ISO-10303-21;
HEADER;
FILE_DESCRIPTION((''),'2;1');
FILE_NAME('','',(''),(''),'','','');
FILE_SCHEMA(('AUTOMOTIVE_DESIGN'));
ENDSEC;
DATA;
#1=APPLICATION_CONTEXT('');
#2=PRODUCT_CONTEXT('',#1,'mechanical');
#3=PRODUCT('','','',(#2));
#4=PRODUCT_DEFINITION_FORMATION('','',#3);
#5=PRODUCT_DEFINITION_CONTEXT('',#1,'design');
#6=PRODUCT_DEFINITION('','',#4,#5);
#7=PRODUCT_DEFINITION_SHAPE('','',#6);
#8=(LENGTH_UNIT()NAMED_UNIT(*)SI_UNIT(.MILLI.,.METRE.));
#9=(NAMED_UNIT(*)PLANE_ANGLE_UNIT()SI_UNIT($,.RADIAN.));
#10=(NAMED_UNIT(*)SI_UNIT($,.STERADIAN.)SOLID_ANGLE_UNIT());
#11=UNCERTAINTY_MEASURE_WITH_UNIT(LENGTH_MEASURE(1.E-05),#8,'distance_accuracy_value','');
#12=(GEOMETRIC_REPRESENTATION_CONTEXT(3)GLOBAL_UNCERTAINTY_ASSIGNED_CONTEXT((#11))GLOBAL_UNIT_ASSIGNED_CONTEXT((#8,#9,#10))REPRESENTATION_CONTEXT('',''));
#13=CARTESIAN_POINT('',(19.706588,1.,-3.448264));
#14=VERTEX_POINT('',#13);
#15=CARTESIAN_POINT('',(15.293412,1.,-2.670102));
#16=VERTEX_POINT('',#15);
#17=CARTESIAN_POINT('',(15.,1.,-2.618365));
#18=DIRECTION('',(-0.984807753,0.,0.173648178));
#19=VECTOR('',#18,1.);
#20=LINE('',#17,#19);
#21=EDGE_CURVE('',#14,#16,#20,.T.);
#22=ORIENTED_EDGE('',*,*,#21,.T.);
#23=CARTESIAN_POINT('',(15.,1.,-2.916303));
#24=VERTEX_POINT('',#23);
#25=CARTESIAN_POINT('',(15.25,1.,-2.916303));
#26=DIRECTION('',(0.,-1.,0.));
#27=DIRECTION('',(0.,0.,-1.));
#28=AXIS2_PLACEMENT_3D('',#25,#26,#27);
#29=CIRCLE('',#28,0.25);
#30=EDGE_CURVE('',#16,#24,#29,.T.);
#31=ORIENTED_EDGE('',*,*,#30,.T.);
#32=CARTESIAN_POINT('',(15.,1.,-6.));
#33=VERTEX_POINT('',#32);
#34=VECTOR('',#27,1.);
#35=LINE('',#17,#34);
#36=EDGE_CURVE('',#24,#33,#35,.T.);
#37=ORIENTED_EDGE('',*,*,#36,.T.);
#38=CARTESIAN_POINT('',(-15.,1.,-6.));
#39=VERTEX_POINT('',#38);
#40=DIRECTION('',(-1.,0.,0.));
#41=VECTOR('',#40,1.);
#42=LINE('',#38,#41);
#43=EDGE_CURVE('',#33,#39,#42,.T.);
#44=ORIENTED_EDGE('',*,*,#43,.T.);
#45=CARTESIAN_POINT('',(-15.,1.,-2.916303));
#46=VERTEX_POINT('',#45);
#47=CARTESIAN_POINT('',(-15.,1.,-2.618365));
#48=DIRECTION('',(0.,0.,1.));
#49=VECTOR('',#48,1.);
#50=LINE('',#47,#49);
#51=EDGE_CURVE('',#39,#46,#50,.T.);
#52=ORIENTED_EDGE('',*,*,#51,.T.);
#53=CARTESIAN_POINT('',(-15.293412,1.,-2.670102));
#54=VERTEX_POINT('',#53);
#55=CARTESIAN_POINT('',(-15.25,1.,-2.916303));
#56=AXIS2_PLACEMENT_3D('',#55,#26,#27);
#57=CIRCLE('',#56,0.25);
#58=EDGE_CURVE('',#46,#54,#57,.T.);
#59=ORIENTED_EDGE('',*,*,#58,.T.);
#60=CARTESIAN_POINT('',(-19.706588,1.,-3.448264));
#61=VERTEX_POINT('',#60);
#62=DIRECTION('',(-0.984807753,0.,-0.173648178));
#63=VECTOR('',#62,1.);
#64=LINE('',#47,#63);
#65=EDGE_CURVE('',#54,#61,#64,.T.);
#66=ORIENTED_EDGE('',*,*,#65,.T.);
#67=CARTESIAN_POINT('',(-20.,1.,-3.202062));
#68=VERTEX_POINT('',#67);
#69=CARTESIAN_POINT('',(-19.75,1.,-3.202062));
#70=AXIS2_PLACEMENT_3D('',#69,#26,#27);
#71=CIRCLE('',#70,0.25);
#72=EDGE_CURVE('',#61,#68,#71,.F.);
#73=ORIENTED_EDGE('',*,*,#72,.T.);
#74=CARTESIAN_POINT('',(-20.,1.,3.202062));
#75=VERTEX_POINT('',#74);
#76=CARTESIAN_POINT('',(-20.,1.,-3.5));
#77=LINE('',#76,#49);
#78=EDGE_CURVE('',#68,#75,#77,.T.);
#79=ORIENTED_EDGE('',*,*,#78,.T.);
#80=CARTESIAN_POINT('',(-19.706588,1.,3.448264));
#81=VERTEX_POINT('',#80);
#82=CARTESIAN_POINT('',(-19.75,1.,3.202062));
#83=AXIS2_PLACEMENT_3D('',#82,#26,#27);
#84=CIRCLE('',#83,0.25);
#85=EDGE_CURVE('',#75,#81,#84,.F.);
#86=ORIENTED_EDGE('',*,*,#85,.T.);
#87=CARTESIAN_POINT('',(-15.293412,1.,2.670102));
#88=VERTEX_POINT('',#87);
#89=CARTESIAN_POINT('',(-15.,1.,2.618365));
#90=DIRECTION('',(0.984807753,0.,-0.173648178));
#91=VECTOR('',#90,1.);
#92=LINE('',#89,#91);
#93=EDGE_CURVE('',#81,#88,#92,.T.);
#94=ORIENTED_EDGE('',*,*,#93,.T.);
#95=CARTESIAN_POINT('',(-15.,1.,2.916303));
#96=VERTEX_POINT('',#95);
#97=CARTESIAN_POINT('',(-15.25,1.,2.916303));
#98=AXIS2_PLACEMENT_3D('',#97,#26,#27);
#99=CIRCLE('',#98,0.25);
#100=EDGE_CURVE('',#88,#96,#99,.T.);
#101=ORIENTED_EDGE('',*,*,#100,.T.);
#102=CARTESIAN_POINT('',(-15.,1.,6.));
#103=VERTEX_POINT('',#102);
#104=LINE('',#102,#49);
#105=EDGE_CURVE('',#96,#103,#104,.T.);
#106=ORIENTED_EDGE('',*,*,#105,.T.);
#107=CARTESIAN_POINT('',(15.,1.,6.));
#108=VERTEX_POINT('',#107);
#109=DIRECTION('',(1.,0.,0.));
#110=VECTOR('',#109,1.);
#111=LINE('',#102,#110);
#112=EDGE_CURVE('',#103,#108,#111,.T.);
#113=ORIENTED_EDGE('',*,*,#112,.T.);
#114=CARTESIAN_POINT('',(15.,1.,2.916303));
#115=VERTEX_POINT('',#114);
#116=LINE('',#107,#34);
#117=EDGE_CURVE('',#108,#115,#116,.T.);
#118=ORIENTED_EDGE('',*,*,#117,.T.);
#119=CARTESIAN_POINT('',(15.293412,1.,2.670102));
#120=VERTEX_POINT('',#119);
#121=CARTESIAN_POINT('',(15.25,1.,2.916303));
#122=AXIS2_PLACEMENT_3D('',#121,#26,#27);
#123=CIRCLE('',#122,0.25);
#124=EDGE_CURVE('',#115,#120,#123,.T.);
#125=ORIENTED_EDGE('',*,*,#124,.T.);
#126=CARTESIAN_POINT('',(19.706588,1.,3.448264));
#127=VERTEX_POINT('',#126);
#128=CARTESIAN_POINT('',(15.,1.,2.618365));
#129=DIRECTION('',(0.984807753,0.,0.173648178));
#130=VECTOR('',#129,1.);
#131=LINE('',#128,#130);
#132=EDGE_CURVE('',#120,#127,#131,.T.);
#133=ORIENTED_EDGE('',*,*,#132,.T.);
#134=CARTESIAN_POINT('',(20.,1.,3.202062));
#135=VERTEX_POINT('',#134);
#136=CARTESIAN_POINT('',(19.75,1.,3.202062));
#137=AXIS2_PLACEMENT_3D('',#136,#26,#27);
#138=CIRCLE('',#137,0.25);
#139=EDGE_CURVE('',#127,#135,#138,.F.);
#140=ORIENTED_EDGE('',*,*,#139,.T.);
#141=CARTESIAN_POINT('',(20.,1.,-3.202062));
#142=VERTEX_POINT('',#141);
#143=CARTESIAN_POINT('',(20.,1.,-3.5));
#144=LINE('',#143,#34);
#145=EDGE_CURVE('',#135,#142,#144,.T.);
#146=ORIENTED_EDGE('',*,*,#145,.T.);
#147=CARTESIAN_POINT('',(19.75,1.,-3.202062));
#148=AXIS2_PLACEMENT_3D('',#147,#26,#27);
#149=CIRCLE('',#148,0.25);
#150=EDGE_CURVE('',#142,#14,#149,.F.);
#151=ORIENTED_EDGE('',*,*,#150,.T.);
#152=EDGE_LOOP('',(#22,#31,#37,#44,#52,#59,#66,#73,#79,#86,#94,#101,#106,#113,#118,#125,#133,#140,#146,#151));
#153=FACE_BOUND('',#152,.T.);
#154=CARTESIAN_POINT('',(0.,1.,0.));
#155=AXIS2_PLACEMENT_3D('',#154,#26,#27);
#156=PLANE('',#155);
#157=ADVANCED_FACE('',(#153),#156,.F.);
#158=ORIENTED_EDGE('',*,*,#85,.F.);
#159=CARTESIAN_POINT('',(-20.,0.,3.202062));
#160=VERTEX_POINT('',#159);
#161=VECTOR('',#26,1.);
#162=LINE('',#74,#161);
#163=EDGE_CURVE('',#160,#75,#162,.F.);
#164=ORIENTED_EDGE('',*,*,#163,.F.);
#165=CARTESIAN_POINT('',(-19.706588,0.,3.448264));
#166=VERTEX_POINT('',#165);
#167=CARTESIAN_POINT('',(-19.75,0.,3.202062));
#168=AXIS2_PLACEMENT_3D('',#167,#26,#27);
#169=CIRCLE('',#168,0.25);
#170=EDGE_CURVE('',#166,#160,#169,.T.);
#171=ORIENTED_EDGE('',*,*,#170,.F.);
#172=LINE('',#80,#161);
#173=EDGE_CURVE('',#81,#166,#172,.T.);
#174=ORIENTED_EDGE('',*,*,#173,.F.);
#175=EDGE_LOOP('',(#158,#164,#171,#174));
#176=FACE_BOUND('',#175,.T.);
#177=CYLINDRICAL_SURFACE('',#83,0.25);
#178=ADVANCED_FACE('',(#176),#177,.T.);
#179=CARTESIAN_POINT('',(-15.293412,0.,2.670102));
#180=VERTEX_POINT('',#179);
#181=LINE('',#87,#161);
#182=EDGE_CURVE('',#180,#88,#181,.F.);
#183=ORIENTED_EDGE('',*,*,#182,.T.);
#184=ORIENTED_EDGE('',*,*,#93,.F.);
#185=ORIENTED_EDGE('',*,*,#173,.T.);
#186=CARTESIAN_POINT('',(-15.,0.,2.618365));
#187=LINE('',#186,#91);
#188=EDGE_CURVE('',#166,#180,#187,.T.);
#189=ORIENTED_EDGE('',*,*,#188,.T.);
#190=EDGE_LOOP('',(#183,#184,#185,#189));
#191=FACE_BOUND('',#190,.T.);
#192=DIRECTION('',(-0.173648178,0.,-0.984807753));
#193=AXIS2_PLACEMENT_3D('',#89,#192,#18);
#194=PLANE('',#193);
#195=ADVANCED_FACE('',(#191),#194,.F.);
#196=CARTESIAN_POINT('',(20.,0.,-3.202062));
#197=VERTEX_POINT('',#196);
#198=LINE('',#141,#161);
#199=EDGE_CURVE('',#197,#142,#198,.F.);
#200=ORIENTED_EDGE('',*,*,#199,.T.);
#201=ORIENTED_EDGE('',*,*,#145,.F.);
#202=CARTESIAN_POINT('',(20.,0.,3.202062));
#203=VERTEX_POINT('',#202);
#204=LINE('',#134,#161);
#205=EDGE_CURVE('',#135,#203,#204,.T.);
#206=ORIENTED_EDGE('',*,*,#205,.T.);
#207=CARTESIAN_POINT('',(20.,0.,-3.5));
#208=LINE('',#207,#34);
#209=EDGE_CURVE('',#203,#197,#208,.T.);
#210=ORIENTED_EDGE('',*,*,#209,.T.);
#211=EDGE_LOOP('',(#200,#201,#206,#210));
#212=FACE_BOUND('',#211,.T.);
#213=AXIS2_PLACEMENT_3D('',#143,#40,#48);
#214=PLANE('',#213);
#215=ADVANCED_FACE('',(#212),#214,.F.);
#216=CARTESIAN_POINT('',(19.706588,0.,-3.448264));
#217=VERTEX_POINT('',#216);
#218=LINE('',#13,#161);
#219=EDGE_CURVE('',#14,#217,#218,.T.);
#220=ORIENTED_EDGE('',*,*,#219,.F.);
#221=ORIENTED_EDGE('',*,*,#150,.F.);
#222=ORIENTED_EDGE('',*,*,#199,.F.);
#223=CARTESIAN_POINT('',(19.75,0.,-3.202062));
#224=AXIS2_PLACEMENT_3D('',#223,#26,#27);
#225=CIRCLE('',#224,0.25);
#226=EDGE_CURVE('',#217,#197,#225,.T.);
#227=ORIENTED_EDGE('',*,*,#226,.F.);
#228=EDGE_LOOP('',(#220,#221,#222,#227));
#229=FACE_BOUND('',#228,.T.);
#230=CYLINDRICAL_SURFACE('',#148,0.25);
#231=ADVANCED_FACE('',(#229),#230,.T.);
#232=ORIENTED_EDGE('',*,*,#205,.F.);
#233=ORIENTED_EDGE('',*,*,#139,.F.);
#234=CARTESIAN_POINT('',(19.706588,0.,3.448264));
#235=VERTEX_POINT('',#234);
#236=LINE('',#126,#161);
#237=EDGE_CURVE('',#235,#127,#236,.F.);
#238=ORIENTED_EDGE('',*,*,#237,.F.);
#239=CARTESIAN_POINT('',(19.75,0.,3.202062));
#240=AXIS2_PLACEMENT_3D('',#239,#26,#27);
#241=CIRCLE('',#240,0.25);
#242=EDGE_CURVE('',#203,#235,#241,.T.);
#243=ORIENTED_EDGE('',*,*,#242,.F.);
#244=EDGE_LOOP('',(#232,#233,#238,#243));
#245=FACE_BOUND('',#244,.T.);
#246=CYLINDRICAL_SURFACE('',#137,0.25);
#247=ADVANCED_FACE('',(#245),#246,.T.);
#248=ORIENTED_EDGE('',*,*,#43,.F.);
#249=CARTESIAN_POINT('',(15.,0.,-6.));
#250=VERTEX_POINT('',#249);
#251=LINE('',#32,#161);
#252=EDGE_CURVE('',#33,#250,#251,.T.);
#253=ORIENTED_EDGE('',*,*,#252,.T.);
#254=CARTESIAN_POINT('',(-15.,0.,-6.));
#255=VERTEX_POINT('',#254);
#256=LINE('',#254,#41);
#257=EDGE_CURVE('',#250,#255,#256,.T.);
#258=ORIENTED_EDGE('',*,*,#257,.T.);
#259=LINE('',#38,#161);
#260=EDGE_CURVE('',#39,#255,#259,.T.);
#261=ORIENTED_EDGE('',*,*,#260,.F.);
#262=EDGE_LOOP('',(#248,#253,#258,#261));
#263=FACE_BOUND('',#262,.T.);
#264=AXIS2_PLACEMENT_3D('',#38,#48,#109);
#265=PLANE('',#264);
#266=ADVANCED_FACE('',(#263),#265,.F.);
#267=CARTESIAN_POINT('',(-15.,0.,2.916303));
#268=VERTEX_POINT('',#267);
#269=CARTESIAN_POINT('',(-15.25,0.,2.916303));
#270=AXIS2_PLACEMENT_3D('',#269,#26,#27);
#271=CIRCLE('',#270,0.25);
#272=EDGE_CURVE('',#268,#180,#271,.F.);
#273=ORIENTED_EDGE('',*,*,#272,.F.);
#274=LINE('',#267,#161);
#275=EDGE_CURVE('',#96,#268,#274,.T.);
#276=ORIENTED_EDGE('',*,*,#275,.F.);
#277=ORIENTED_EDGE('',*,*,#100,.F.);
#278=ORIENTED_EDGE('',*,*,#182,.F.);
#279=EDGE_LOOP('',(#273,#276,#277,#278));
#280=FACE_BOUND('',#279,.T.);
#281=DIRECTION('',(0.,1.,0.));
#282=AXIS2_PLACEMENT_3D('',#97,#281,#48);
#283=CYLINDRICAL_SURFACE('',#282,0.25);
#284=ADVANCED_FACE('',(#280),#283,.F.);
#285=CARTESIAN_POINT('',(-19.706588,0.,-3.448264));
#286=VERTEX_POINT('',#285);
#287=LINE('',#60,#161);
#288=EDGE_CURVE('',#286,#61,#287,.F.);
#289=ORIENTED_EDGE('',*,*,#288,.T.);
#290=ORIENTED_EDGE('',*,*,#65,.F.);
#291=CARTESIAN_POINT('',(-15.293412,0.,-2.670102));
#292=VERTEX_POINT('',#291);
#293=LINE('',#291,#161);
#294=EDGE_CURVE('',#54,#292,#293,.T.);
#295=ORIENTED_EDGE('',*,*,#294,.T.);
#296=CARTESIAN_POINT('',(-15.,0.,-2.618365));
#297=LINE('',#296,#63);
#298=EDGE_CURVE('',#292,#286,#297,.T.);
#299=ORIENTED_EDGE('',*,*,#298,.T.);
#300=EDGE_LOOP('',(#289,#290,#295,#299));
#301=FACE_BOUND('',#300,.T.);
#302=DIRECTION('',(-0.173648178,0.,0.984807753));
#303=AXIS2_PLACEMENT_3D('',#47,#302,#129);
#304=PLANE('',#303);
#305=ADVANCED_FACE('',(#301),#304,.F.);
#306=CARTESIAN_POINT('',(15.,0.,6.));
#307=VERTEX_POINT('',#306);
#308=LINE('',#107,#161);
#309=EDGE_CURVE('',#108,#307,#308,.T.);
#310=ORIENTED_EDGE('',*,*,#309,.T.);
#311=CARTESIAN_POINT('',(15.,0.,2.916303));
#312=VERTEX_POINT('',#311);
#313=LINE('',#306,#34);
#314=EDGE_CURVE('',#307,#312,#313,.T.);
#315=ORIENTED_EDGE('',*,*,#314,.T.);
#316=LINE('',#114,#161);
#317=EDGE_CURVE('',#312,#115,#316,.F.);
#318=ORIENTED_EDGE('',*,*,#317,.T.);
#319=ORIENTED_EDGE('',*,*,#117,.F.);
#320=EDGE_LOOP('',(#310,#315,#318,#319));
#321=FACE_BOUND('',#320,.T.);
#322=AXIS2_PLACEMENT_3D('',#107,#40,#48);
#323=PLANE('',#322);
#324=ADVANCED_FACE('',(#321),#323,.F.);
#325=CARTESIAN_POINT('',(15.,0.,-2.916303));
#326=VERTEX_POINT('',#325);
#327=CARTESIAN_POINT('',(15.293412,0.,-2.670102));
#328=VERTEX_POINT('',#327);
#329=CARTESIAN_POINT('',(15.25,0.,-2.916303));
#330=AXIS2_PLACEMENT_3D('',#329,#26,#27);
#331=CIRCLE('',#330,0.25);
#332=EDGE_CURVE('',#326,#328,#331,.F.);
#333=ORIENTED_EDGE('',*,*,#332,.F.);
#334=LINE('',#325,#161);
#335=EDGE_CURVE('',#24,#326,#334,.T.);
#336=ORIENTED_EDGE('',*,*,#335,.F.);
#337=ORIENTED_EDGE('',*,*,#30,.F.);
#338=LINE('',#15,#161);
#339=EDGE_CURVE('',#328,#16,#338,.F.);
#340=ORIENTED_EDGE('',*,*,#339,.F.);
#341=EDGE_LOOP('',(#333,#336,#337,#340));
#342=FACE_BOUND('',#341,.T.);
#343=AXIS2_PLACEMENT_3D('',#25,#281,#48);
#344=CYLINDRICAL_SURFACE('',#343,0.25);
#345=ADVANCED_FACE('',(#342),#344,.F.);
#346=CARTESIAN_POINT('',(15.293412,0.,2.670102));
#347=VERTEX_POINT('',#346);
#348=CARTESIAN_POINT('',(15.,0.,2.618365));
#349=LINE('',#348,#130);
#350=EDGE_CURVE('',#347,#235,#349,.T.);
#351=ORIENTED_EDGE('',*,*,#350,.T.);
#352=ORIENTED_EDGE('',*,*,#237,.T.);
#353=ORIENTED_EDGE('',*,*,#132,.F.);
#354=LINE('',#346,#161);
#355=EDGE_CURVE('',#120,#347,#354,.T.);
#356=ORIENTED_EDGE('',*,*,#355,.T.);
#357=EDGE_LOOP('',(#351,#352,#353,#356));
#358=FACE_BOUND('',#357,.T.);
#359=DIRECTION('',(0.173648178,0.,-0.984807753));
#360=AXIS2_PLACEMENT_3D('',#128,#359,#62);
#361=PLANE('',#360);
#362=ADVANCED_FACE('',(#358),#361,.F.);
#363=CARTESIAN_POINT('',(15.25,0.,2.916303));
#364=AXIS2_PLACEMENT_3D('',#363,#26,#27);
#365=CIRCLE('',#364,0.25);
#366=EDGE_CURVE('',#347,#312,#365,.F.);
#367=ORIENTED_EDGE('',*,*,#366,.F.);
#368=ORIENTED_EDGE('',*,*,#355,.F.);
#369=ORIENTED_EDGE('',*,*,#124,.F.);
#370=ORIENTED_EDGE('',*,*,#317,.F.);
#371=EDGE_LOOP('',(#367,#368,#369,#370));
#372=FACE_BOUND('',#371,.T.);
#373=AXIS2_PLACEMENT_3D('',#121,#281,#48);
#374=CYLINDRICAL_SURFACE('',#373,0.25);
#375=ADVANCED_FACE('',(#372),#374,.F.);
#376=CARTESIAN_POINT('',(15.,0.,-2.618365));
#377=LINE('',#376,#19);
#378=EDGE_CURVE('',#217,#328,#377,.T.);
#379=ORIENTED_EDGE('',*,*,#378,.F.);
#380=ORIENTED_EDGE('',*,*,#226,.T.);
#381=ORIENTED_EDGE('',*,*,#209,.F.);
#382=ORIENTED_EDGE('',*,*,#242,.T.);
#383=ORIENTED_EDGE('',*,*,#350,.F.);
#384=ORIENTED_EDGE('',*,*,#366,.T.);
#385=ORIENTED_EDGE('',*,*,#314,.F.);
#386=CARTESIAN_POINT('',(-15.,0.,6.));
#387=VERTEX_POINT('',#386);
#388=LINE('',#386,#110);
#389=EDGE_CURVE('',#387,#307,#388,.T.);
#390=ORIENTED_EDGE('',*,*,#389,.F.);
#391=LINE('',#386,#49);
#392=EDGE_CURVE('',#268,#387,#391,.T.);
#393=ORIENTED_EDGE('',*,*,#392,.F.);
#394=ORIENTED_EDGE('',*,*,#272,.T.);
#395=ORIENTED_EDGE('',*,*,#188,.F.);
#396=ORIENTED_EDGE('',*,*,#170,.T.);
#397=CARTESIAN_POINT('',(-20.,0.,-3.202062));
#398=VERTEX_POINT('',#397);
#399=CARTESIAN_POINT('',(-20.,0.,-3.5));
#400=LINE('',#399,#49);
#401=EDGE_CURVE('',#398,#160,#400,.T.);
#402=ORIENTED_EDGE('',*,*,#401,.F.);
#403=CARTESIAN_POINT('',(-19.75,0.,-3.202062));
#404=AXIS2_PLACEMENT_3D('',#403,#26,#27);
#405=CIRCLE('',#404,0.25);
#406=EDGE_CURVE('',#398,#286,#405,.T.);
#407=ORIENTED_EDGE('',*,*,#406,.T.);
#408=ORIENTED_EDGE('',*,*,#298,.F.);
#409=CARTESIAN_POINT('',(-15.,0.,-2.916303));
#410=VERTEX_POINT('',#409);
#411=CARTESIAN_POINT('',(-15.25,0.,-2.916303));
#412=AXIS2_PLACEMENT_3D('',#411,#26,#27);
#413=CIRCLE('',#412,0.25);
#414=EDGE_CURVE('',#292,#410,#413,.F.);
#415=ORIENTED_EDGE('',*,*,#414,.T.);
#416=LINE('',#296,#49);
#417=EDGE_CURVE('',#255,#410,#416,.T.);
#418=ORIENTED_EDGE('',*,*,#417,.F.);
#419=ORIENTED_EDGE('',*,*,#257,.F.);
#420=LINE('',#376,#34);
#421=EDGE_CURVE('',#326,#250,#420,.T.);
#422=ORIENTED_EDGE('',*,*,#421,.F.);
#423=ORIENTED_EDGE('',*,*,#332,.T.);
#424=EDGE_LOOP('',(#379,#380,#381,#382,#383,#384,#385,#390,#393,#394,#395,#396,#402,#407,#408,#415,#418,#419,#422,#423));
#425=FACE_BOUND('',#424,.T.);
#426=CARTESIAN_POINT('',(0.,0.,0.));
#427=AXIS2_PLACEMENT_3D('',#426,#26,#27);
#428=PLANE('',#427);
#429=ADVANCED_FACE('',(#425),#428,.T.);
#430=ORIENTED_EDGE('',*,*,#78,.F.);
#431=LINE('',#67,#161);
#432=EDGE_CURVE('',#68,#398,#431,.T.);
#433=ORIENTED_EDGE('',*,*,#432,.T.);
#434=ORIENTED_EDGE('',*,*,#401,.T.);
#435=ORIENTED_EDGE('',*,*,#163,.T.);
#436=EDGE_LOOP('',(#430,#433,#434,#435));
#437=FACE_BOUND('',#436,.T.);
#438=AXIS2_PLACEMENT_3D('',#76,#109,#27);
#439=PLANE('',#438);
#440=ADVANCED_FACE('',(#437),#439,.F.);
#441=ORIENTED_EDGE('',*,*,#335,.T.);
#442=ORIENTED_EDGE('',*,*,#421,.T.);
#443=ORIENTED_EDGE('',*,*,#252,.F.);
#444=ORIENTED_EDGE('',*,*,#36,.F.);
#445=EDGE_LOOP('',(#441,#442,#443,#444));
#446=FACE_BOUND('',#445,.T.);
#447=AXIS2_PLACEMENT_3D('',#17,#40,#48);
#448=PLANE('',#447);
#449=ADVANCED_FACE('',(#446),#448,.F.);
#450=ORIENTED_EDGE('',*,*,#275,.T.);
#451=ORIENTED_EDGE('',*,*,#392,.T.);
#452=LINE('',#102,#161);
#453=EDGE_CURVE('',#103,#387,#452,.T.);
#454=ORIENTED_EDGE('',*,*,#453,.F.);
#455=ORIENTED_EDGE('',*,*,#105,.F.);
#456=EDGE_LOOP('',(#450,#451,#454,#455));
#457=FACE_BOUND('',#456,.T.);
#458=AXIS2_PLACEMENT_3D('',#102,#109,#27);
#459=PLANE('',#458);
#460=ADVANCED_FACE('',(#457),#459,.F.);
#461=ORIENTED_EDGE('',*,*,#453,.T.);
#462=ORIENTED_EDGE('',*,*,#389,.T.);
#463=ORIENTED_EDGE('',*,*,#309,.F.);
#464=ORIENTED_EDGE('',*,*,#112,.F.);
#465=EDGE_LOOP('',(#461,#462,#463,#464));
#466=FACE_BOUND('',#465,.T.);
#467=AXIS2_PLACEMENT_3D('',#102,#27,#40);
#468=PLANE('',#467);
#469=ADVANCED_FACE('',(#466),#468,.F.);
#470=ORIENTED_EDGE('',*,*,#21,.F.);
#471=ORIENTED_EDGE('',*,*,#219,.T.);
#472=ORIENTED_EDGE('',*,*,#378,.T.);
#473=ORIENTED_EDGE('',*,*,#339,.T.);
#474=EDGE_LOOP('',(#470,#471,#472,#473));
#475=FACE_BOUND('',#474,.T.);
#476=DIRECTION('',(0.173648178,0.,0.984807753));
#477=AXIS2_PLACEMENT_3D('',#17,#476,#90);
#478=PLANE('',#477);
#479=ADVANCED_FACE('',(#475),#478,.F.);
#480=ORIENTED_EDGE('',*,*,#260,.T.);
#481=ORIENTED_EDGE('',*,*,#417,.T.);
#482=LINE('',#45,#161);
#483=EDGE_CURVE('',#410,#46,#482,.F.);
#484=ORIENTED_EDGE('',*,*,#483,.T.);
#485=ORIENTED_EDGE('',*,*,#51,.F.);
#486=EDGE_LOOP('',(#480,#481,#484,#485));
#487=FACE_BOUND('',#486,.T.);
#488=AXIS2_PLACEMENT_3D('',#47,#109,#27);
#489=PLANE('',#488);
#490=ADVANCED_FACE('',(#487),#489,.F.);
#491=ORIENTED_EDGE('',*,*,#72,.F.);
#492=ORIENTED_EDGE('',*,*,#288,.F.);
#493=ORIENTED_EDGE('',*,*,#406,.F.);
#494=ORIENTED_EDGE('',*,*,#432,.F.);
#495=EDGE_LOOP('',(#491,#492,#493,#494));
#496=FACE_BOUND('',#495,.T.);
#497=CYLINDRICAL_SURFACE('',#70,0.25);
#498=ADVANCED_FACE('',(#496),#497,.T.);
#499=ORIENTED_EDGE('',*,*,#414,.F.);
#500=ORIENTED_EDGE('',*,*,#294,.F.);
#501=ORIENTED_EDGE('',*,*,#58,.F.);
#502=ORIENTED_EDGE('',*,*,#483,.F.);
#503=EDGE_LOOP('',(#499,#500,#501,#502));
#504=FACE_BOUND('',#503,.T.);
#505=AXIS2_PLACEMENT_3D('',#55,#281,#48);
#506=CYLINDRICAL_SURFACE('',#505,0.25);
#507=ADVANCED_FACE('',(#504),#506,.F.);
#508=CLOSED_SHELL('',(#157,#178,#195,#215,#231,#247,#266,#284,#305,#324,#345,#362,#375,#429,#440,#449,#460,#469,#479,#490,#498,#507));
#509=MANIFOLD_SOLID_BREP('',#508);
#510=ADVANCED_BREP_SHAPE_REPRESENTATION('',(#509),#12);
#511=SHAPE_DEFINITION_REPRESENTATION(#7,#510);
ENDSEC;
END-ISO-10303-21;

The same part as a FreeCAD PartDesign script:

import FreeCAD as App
import Part
import Sketcher
from FreeCAD import Vector
Q = App.Units.Quantity


def edges_at(feature, points):
    """Names of the edges that pass closest to the given points."""
    edges = feature.Shape.Edges
    near = lambda p: min(range(len(edges)), key=lambda i: edges[i].distToShape(Part.Vertex(*p))[0])
    return sorted({f"Edge{near(p) + 1}" for p in points})


def add_polygon(sketch, points):
    """Adds a closed chain of lines whose ends are joined by coincident constraints."""
    first, n = sketch.GeometryCount, len(points)
    for a, b in zip(points, points[1:] + points[:1]):
        sketch.addGeometry(Part.LineSegment(App.Vector(*a, 0), App.Vector(*b, 0)), False)
    for i in range(n):
        sketch.addConstraint(Sketcher.Constraint("Coincident", first + i, 2, first + (i + 1) % n, 1))

doc = App.newDocument("Part")
body = doc.addObject("PartDesign::Body", "Body")

# Sketch on XZ plane
sketch1 = body.newObject("Sketcher::SketchObject", "Sketch")
sketch1.AttachmentSupport = (doc.getObject("XZ_Plane"), [""])
sketch1.MapMode = "FlatFace"
add_polygon(sketch1, [(-15, -2.6), (-20, -3.5), (-20, 3.5), (-15, 2.6), (-15, 6), (15, 6), (15, 2.6), (20, 3.5), (20, -3.5), (15, -2.6), (15, -6), (-15, -6)])  # lines 0-11
sketch1.addConstraint([
    Sketcher.Constraint("Vertical", 1),
    Sketcher.Constraint("Vertical", 3),
    Sketcher.Constraint("Horizontal", 4),
    Sketcher.Constraint("Vertical", 5),
    Sketcher.Constraint("Vertical", 7),
    Sketcher.Constraint("Vertical", 9),
    Sketcher.Constraint("Horizontal", 10),
    Sketcher.Constraint("Vertical", 11),
    Sketcher.Constraint("Symmetric", 0, 2, 6, 2, -1, 1),
    Sketcher.Constraint("Symmetric", 2, 2, 8, 2, -1, 1),
    Sketcher.Constraint("Symmetric", 4, 2, 10, 2, -1, 1),
    Sketcher.Constraint("Symmetric", 2, 2, 5, 2, -2),
    Sketcher.Constraint("Parallel", 0, 6),
    Sketcher.Constraint("Parallel", 2, 8),
    Sketcher.Constraint("Horizontal", 1, 2, 6, 2),
    Sketcher.Constraint("DistanceX", 4, 1, 4, 2, 30.0),
    Sketcher.Constraint("DistanceY", 1, 1, 1, 2, 7.0),
    Sketcher.Constraint("Angle", 0, Q("-170 deg")),
    Sketcher.Constraint("DistanceX", 0, 2, -1, 1, 20.0),
    Sketcher.Constraint("DistanceY", -1, 1, 3, 2, 6.0),
])
pad1 = body.newObject("PartDesign::Pad", "Pad")
pad1.Profile = sketch1
pad1.Length = 1
pad1.Reversed = True
doc.recompute()

fillet = body.newObject("PartDesign::Fillet", "Fillet")
fillet.Base = (pad1, edges_at(pad1, [
    (15, 0.5, -2.618),
    (20, 0.5, -3.5),
    (20, 0.5, 3.5),
    (15, 0.5, 2.618),
    (-15, 0.5, 2.618),
    (-20, 0.5, 3.5),
    (-20, 0.5, -3.5),
    (-15, 0.5, -2.618),
]))
fillet.Radius = 0.25

doc.recompute()
